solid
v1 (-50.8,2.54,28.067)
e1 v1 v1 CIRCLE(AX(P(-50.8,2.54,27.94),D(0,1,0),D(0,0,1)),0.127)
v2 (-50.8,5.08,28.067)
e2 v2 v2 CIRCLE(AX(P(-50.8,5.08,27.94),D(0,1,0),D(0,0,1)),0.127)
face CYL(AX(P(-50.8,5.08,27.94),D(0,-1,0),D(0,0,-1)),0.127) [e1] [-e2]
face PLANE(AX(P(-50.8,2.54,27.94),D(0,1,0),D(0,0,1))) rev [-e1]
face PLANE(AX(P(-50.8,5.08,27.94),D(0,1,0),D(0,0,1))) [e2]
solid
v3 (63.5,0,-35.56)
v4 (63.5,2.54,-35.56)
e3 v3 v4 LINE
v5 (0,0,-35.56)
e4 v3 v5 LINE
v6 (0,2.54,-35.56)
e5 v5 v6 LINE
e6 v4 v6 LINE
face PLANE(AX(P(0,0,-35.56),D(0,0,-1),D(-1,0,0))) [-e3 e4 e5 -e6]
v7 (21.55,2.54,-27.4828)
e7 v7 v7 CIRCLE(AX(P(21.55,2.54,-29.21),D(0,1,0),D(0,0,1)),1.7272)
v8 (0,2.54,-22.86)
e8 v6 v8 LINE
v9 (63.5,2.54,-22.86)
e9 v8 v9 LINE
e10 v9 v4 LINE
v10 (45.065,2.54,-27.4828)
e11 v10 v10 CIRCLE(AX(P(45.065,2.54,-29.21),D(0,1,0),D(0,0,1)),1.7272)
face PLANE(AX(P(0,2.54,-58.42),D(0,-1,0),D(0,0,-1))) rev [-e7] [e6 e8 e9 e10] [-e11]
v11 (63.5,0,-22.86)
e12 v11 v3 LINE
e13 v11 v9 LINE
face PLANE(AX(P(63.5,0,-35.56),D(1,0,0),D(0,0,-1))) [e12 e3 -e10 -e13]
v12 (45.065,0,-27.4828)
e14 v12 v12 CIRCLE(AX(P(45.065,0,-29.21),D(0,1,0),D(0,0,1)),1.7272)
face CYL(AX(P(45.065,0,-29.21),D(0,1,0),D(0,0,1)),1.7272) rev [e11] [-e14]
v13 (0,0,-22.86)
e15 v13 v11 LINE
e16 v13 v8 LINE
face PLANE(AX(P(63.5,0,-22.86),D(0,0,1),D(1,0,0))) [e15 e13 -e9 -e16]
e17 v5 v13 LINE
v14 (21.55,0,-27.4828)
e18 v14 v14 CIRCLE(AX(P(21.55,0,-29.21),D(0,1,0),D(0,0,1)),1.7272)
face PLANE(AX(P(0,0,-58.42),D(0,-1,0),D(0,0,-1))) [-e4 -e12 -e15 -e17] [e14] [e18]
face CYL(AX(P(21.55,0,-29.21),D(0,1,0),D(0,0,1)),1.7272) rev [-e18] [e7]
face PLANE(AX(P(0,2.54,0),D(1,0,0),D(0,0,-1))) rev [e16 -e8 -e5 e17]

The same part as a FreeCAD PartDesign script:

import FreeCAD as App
import Part
import Sketcher
Q = App.Units.Quantity


def add_polygon(sketch, points):
    """Adds a closed chain of lines whose ends are joined by coincident constraints."""
    first, n = sketch.GeometryCount, len(points)
    for a, b in zip(points, points[1:] + points[:1]):
        sketch.addGeometry(Part.LineSegment(App.Vector(*a, 0), App.Vector(*b, 0)), False)
    for i in range(n):
        sketch.addConstraint(Sketcher.Constraint("Coincident", first + i, 2, first + (i + 1) % n, 1))

doc = App.newDocument("Part")
body = doc.addObject("PartDesign::Body", "Body")

# Sketch on XZ plane
sketch1 = doc.addObject("Sketcher::SketchObject", "Sketch")
body.addObject(sketch1)
sketch1.AttachmentSupport = (doc.XZ_Plane, [""])
sketch1.MapMode = "FlatFace"
add_polygon(sketch1, [(0, -58.42), (0, 0), (107.95, 0), (107.95, -58.42)])  # lines 0-3
sketch1.addConstraint([
    Sketcher.Constraint("Vertical", 0),
    Sketcher.Constraint("Horizontal", 1),
    Sketcher.Constraint("Vertical", 2),
    Sketcher.Constraint("Horizontal", 3),
    Sketcher.Constraint("Coincident", 0, 2, -1, 1),
    Sketcher.Constraint("DistanceY", 0, 1, 0, 2, Q("2.3 in")),
    Sketcher.Constraint("DistanceX", 1, 1, 1, 2, Q("4.25 in")),
])
pad1 = doc.addObject("PartDesign::Pad", "Pad")
body.addObject(pad1)
pad1.Profile = sketch1
pad1.Length = Q("0.1 in")
pad1.Reversed = True

# Sketch on XZ plane
sketch2 = doc.addObject("Sketcher::SketchObject", "Sketch001")
body.addObject(sketch2)
sketch2.AttachmentSupport = (doc.XZ_Plane, [""])
sketch2.MapMode = "FlatFace"
sketch2.AttachmentOffset = App.Placement(App.Vector(0, 0, -0.1 * 25.4), App.Rotation())
add_polygon(sketch2, [(-13.277, -71.697), (-13.277, 13.277), (121.227, 13.277), (121.227, -71.697)])  # lines 0-3
add_polygon(sketch2, [(63.5, -22.86), (0, -22.86), (0, -35.56), (63.5, -35.56)])  # lines 4-7
sketch2.addConstraint([
    Sketcher.Constraint("Vertical", 0),
    Sketcher.Constraint("Horizontal", 1),
    Sketcher.Constraint("Vertical", 2),
    Sketcher.Constraint("Horizontal", 3),
    Sketcher.Constraint("Horizontal", 4),
    Sketcher.Constraint("Vertical", 5),
    Sketcher.Constraint("Horizontal", 6),
    Sketcher.Constraint("Vertical", 7),
    Sketcher.Constraint("PointOnObject", 4, 2, -2),
    Sketcher.Constraint("DistanceX", 4, 2, 4, 1, Q("2.5 in")),
    Sketcher.Constraint("DistanceY", 5, 2, 5, 1, Q("0.5 in")),
    Sketcher.Constraint("DistanceY", 4, 2, -1, 1, Q("0.9 in")),
    Sketcher.Constraint("DistanceX", 1, 1, 1, 2, 134.504),
    Sketcher.Constraint("DistanceY", 0, 1, 0, 2, 84.974),
    Sketcher.Constraint("DistanceX", 0, 2, -1, 1, 13.277),
    Sketcher.Constraint("DistanceY", -1, 1, 0, 2, 13.277),
])
pocket1 = doc.addObject("PartDesign::Pocket", "Pocket")
body.addObject(pocket1)
pocket1.Profile = sketch2
pocket1.Length = Q("0.1 in")
pocket1.Reversed = True

# Sketch on XZ plane
sketch3 = doc.addObject("Sketcher::SketchObject", "Sketch002")
body.addObject(sketch3)
sketch3.AttachmentSupport = (doc.XZ_Plane, [""])
sketch3.MapMode = "FlatFace"
sketch3.AttachmentOffset = App.Placement(App.Vector(0, 0, -0.1 * 25.4), App.Rotation())
sketch3.addGeometry([
    Part.Circle(App.Vector(45.065, -29.21, 0), App.Vector(0, 0, 1), 1.7272),
    Part.Circle(App.Vector(21.55, -29.21, 0), App.Vector(0, 0, 1), 1.7272),
], False)
sketch3.addConstraint([
    Sketcher.Constraint("Equal", 0, 1),
    Sketcher.Constraint("Horizontal", 0, 3, 1, 3),
    Sketcher.Constraint("Diameter", 0, Q("0.136 in")),
    Sketcher.Constraint("DistanceY", 0, 3, -1, 1, Q("1.15 in")),
    Sketcher.Constraint("DistanceX", -1, 1, 0, 3, 45.065),
    Sketcher.Constraint("DistanceX", -1, 1, 1, 3, 21.55),
])
pocket2 = doc.addObject("PartDesign::Pocket", "Pocket001")
body.addObject(pocket2)
pocket2.Profile = sketch3
pocket2.Length = Q("0.1 in")
pocket2.Reversed = True
body2 = doc.addObject("PartDesign::Body", "Body001")

# Sketch on XZ plane
sketch4 = doc.addObject("Sketcher::SketchObject", "Sketch003")
body2.addObject(sketch4)
sketch4.AttachmentSupport = (doc.getObject("XZ_Plane001"), [""])
sketch4.MapMode = "FlatFace"
sketch4.AttachmentOffset = App.Placement(App.Vector(0, 0, -0.1 * 25.4), App.Rotation())
sketch4.addGeometry(Part.Circle(App.Vector(-50.8, 27.94, 0), App.Vector(0, 0, 1), 0.127), False)
sketch4.addConstraint([
    Sketcher.Constraint("Diameter", 0, Q("0.01 in")),
    Sketcher.Constraint("DistanceX", 0, 3, -1, 1, Q("2 in")),
    Sketcher.Constraint("DistanceY", -1, 1, 0, 3, Q("1.1 in")),
])
pad2 = doc.addObject("PartDesign::Pad", "Pad001")
body2.addObject(pad2)
pad2.Profile = sketch4
pad2.Length = Q("0.1 in")
pad2.Reversed = True

doc.recompute()
